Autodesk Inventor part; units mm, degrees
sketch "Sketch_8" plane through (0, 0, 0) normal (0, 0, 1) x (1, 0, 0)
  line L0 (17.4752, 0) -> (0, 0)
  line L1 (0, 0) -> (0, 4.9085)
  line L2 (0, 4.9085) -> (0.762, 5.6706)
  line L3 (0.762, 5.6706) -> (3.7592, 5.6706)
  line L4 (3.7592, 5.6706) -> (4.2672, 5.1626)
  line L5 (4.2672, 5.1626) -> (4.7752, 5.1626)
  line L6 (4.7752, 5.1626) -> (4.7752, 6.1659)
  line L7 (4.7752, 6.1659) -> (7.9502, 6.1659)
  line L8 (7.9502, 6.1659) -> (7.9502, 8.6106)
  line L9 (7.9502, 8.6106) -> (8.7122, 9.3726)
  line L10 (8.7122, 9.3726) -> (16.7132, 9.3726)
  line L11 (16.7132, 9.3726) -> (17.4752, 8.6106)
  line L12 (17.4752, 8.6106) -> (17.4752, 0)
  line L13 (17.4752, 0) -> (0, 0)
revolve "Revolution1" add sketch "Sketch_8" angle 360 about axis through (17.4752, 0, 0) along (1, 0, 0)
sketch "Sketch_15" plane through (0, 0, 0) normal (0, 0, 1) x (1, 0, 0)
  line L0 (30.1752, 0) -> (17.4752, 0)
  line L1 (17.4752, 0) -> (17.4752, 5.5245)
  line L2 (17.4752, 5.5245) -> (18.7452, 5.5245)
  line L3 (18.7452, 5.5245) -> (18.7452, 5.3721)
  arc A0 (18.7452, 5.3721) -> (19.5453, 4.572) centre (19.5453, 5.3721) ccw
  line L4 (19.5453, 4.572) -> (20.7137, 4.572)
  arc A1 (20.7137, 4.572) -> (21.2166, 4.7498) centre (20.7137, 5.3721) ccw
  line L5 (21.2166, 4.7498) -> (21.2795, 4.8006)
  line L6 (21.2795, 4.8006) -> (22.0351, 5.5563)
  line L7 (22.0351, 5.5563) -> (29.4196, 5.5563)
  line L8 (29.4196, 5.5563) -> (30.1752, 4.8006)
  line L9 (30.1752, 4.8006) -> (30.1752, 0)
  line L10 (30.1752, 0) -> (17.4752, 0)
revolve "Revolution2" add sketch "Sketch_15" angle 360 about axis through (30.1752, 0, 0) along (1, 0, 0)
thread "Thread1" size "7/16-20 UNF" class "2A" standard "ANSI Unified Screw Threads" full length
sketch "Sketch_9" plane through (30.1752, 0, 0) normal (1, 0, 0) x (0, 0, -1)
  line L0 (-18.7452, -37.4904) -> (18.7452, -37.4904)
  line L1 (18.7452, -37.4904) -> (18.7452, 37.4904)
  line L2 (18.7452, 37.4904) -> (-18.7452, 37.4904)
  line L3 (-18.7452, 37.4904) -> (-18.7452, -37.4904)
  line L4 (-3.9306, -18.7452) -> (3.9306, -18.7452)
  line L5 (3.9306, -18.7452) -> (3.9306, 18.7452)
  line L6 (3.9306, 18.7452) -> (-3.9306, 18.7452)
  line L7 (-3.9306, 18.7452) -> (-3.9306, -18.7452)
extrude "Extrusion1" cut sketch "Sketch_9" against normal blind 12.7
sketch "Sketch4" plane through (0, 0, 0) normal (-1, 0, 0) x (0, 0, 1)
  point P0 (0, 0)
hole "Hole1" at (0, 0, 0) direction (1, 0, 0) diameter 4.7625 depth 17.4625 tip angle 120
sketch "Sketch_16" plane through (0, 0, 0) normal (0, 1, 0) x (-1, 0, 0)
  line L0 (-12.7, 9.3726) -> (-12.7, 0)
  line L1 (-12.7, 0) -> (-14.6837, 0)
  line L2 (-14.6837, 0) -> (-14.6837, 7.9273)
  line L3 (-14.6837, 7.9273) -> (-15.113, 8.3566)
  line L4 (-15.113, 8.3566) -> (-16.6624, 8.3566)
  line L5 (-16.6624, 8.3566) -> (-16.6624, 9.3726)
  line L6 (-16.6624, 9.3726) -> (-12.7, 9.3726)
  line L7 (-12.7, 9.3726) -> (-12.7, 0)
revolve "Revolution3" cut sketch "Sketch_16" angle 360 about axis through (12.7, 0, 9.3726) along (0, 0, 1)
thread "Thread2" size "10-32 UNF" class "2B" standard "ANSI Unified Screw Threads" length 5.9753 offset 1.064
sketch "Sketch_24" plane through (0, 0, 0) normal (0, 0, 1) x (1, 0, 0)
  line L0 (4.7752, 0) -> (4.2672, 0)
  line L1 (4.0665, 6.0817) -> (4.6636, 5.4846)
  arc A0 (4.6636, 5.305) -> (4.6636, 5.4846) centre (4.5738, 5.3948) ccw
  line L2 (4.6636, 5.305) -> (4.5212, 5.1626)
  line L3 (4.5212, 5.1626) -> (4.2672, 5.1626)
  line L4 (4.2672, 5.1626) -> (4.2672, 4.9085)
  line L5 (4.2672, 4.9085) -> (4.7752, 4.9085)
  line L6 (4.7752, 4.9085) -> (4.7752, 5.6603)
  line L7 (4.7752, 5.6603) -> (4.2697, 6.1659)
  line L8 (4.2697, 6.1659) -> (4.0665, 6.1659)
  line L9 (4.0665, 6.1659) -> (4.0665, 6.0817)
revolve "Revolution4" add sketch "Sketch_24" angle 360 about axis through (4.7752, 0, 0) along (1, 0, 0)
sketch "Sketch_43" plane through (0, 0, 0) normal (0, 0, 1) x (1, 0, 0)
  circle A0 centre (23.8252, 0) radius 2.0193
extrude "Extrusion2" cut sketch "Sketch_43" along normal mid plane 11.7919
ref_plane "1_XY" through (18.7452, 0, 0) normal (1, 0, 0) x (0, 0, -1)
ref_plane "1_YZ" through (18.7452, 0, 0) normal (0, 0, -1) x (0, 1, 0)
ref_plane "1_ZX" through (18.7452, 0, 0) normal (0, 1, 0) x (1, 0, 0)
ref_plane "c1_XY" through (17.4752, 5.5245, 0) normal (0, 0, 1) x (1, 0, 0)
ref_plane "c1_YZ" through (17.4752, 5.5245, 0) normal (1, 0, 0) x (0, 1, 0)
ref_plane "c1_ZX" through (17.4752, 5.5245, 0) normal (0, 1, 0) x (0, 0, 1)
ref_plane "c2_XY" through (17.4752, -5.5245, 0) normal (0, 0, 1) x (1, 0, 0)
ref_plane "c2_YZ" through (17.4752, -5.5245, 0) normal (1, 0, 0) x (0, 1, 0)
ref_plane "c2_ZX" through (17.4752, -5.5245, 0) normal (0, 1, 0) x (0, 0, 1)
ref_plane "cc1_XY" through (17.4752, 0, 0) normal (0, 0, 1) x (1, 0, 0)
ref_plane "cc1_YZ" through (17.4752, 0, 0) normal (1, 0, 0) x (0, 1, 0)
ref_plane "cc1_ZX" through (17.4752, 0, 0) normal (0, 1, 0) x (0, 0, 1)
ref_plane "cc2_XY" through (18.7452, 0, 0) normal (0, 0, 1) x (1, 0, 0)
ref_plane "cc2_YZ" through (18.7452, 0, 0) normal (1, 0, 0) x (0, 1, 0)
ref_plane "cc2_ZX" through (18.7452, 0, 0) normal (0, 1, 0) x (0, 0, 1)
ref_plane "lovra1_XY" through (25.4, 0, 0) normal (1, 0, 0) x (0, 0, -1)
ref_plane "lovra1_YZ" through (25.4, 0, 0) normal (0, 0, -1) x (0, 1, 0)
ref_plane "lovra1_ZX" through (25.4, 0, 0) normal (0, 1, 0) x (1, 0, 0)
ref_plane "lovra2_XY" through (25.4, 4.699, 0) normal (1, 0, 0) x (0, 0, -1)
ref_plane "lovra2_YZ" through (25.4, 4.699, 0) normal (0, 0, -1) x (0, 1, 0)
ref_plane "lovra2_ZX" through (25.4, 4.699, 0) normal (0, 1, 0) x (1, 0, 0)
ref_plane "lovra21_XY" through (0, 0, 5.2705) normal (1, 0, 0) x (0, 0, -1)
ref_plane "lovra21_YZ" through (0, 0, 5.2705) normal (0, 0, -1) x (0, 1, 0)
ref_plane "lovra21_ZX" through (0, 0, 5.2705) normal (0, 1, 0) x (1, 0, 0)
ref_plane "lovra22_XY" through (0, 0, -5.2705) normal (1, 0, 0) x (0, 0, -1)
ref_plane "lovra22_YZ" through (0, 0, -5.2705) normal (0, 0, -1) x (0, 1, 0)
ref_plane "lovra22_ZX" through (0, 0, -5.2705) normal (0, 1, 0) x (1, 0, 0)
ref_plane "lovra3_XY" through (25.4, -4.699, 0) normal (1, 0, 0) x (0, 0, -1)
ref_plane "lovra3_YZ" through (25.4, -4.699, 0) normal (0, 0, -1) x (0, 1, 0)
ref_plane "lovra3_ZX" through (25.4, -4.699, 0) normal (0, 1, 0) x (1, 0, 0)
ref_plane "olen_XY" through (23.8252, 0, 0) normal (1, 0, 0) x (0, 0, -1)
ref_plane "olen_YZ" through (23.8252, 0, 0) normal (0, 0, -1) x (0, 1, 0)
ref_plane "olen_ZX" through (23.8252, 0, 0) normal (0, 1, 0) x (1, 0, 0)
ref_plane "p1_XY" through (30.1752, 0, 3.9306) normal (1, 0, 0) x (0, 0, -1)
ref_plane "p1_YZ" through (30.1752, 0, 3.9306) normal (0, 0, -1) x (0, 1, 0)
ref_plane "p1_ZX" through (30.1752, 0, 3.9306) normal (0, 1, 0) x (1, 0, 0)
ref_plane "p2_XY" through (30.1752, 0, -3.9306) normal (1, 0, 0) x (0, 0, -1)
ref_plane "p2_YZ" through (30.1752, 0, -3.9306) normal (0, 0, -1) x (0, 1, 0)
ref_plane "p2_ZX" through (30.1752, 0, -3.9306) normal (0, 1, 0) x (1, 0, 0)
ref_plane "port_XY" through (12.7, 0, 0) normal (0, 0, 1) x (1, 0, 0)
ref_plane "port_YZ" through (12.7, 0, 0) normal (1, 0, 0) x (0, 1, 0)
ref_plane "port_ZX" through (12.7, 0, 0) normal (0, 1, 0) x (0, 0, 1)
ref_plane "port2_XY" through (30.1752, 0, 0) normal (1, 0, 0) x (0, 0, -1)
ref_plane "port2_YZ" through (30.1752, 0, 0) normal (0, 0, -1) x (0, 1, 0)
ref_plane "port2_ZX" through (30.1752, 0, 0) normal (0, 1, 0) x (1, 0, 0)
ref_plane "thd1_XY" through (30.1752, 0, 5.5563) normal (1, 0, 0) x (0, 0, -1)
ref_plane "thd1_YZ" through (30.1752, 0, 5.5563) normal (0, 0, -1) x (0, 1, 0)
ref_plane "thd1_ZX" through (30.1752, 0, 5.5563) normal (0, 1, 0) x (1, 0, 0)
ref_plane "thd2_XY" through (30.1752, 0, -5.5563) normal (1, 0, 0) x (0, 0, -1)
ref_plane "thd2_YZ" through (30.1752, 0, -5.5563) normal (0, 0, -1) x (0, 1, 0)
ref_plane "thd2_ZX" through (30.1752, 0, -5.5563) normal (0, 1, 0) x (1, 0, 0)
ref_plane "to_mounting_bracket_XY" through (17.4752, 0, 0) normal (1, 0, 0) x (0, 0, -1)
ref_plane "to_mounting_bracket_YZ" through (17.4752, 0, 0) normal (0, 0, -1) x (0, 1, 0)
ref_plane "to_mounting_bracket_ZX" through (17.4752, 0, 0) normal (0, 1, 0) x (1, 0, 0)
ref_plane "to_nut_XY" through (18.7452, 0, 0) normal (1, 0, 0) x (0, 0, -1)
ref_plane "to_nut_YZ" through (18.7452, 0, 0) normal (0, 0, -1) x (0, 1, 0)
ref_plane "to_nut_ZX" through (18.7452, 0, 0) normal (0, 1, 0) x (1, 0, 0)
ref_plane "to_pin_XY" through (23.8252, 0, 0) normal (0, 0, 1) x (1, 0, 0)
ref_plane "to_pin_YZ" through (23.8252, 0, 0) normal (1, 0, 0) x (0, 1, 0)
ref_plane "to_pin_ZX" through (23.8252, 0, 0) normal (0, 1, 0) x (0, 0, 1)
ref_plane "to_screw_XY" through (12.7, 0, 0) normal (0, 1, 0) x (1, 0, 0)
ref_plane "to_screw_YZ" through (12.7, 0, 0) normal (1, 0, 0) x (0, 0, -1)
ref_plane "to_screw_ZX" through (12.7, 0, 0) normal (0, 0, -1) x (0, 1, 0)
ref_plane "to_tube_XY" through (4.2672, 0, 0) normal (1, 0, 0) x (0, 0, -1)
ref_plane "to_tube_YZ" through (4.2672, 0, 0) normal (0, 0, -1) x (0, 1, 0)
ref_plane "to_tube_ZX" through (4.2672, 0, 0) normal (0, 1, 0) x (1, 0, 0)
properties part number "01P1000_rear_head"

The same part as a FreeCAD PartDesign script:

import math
import FreeCAD as App
import Part
import Sketcher

V = App.Vector
Q = App.Units.Quantity

doc = App.newDocument("Part")
body = doc.addObject("PartDesign::Body", "Body")

# Sketch on XY plane
sketch1 = body.newObject("Sketcher::SketchObject", "Sketch")
sketch1.AttachmentSupport = (doc.getObject("XY_Plane"), [""])
sketch1.MapMode = "FlatFace"
sketch1.addGeometry(Part.LineSegment(V(0, 0, 0), V(17.4752, 0, 0)), False)
sketch1.addGeometry(Part.LineSegment(V(17.4752, 0, 0), V(17.4752, 8.6106, 0)), False)
sketch1.addGeometry(Part.LineSegment(V(17.4752, 8.6106, 0), V(16.7132, 9.3726, 0)), False)
sketch1.addGeometry(Part.LineSegment(V(16.7132, 9.3726, 0), V(8.7122, 9.3726, 0)), False)
sketch1.addGeometry(Part.LineSegment(V(8.7122, 9.3726, 0), V(7.9502, 8.6106, 0)), False)
sketch1.addGeometry(Part.LineSegment(V(7.9502, 8.6106, 0), V(7.9502, 6.1659, 0)), False)
sketch1.addGeometry(Part.LineSegment(V(7.9502, 6.1659, 0), V(4.7752, 6.1659, 0)), False)
sketch1.addGeometry(Part.LineSegment(V(4.7752, 6.1659, 0), V(4.7752, 5.1626, 0)), False)
sketch1.addGeometry(Part.LineSegment(V(4.7752, 5.1626, 0), V(4.2672, 5.1626, 0)), False)
sketch1.addGeometry(Part.LineSegment(V(4.2672, 5.1626, 0), V(3.7592, 5.6706, 0)), False)
sketch1.addGeometry(Part.LineSegment(V(3.7592, 5.6706, 0), V(0.762, 5.6706, 0)), False)
sketch1.addGeometry(Part.LineSegment(V(0.762, 5.6706, 0), V(0, 4.9085, 0)), False)
sketch1.addGeometry(Part.LineSegment(V(0, 4.9085, 0), V(0, 0, 0)), False)
sketch1.addConstraint(Sketcher.Constraint("Coincident", 0, 2, 1, 1))
sketch1.addConstraint(Sketcher.Constraint("Coincident", 1, 2, 2, 1))
sketch1.addConstraint(Sketcher.Constraint("Coincident", 2, 2, 3, 1))
sketch1.addConstraint(Sketcher.Constraint("Coincident", 3, 2, 4, 1))
sketch1.addConstraint(Sketcher.Constraint("Coincident", 4, 2, 5, 1))
sketch1.addConstraint(Sketcher.Constraint("Coincident", 5, 2, 6, 1))
sketch1.addConstraint(Sketcher.Constraint("Coincident", 6, 2, 7, 1))
sketch1.addConstraint(Sketcher.Constraint("Coincident", 7, 2, 8, 1))
sketch1.addConstraint(Sketcher.Constraint("Coincident", 8, 2, 9, 1))
sketch1.addConstraint(Sketcher.Constraint("Coincident", 9, 2, 10, 1))
sketch1.addConstraint(Sketcher.Constraint("Coincident", 10, 2, 11, 1))
sketch1.addConstraint(Sketcher.Constraint("Coincident", 11, 2, 12, 1))
sketch1.addConstraint(Sketcher.Constraint("Coincident", 12, 2, 0, 1))
sketch1.addConstraint(Sketcher.Constraint("Horizontal", 0))
sketch1.addConstraint(Sketcher.Constraint("Vertical", 1))
sketch1.addConstraint(Sketcher.Constraint("Horizontal", 3))
sketch1.addConstraint(Sketcher.Constraint("Vertical", 5))
sketch1.addConstraint(Sketcher.Constraint("Horizontal", 6))
sketch1.addConstraint(Sketcher.Constraint("Vertical", 7))
sketch1.addConstraint(Sketcher.Constraint("Horizontal", 8))
sketch1.addConstraint(Sketcher.Constraint("Horizontal", 10))
sketch1.addConstraint(Sketcher.Constraint("Vertical", 12))
sketch1.addConstraint(Sketcher.Constraint("Coincident", 12, 2, -1, 1))
sketch1.addConstraint(Sketcher.Constraint("Perpendicular", 2, 4))
sketch1.addConstraint(Sketcher.Constraint("Perpendicular", 4, 9))
sketch1.addConstraint(Sketcher.Constraint("Perpendicular", 9, 11))
sketch1.addConstraint(Sketcher.Constraint("Horizontal", 1, 2, 4, 2))
sketch1.addConstraint(Sketcher.Constraint("Equal", 2, 4))
sketch1.addConstraint(Sketcher.Constraint("Equal", 4, 11))
sketch1.addConstraint(Sketcher.Constraint("DistanceX", 8, 2, 8, 1, Q("0.02 in")))
sketch1.addConstraint(Sketcher.Constraint("DistanceX", 6, 2, 1, 2, Q("0.5 in")))
sketch1.addConstraint(Sketcher.Constraint("DistanceX", 0, 1, 0, 2, Q("0.688 in")))
sketch1.addConstraint(Sketcher.Constraint("DistanceX", 3, 2, 3, 1, Q("0.315 in")))
sketch1.addConstraint(Sketcher.Constraint("DistanceX", 6, 2, 6, 1, Q("0.125 in")))
sketch1.addConstraint(Sketcher.Constraint("DistanceX", 10, 2, 10, 1, Q("0.118 in")))
sketch1.addConstraint(Sketcher.Constraint("DistanceY", 1, 1, 1, 2, Q("0.339 in")))
sketch1.addConstraint(Sketcher.Constraint("DistanceY", 7, 2, 7, 1, Q("0.0395 in")))
sketch1.addConstraint(Sketcher.Constraint("DistanceY", 5, 2, 5, 1, 2.4447))
revolution = body.newObject("PartDesign::Revolution", "Revolution")
revolution.Profile = sketch1
revolution.ReferenceAxis = (sketch1, ["H_Axis"])
revolution.Angle = 360

# Sketch on XY plane
sketch2 = body.newObject("Sketcher::SketchObject", "Sketch001")
sketch2.AttachmentSupport = (doc.getObject("XY_Plane"), [""])
sketch2.MapMode = "FlatFace"
sketch2.addGeometry(Part.LineSegment(V(17.4752, 0, 0), V(30.1752, 0, 0)), False)
sketch2.addGeometry(Part.LineSegment(V(30.1752, 0, 0), V(30.1752, 4.8006, 0)), False)
sketch2.addGeometry(Part.LineSegment(V(30.1752, 4.8006, 0), V(29.4196, 5.5563, 0)), False)
sketch2.addGeometry(Part.LineSegment(V(29.4196, 5.5563, 0), V(22.0351, 5.5563, 0)), False)
sketch2.addGeometry(Part.LineSegment(V(22.0351, 5.5563, 0), V(21.2795, 4.8006, 0)), False)
sketch2.addGeometry(Part.LineSegment(V(21.2795, 4.8006, 0), V(21.2166, 4.7498, 0)), False)
sketch2.addGeometry(Part.ArcOfCircle(Part.Circle(V(20.7137, 5.3721, 0), V(0, 0, 1), 0.8001), math.radians(-90), math.radians(-51.057244)), False)
sketch2.addGeometry(Part.LineSegment(V(20.7137, 4.572, 0), V(19.5453, 4.572, 0)), False)
sketch2.addGeometry(Part.ArcOfCircle(Part.Circle(V(19.5453, 5.3721, 0), V(0, 0, 1), 0.8001), math.radians(180), math.radians(270)), False)
sketch2.addGeometry(Part.LineSegment(V(18.7452, 5.3721, 0), V(18.7452, 5.5245, 0)), False)
sketch2.addGeometry(Part.LineSegment(V(18.7452, 5.5245, 0), V(17.4752, 5.5245, 0)), False)
sketch2.addGeometry(Part.LineSegment(V(17.4752, 5.5245, 0), V(17.4752, 0, 0)), False)
sketch2.addConstraint(Sketcher.Constraint("Coincident", 0, 2, 1, 1))
sketch2.addConstraint(Sketcher.Constraint("Coincident", 1, 2, 2, 1))
sketch2.addConstraint(Sketcher.Constraint("Coincident", 2, 2, 3, 1))
sketch2.addConstraint(Sketcher.Constraint("Coincident", 3, 2, 4, 1))
sketch2.addConstraint(Sketcher.Constraint("Coincident", 4, 2, 5, 1))
sketch2.addConstraint(Sketcher.Constraint("Tangent", 5, 2, 6, 2))
sketch2.addConstraint(Sketcher.Constraint("Tangent", 6, 1, 7, 1))
sketch2.addConstraint(Sketcher.Constraint("Tangent", 7, 2, 8, 2))
sketch2.addConstraint(Sketcher.Constraint("Tangent", 8, 1, 9, 1))
sketch2.addConstraint(Sketcher.Constraint("Coincident", 9, 2, 10, 1))
sketch2.addConstraint(Sketcher.Constraint("Coincident", 10, 2, 11, 1))
sketch2.addConstraint(Sketcher.Constraint("Coincident", 11, 2, 0, 1))
sketch2.addConstraint(Sketcher.Constraint("Horizontal", 0))
sketch2.addConstraint(Sketcher.Constraint("Vertical", 1))
sketch2.addConstraint(Sketcher.Constraint("Horizontal", 3))
sketch2.addConstraint(Sketcher.Constraint("Horizontal", 7))
sketch2.addConstraint(Sketcher.Constraint("Vertical", 9))
sketch2.addConstraint(Sketcher.Constraint("Horizontal", 10))
sketch2.addConstraint(Sketcher.Constraint("Vertical", 11))
sketch2.addConstraint(Sketcher.Constraint("Equal", 6, 8))
sketch2.addConstraint(Sketcher.Constraint("PointOnObject", 0, 2, -1))
sketch2.addConstraint(Sketcher.Constraint("Perpendicular", 2, 4))
sketch2.addConstraint(Sketcher.Constraint("Horizontal", 1, 2, 4, 2))
sketch2.addConstraint(Sketcher.Constraint("Equal", 2, 4))
sketch2.addConstraint(Sketcher.Constraint("DistanceX", 0, 1, 0, 2, Q("0.5 in")))
sketch2.addConstraint(Sketcher.Constraint("DistanceX", 10, 2, 10, 1, Q("0.05 in")))
sketch2.addConstraint(Sketcher.Constraint("Radius", 6, Q("0.0315 in")))
sketch2.addConstraint(Sketcher.Constraint("DistanceX", 7, 2, 7, 1, Q("0.046 in")))
sketch2.addConstraint(Sketcher.Constraint("DistanceY", 1, 1, 1, 2, Q("0.189 in")))
sketch2.addConstraint(Sketcher.Constraint("DistanceY", 9, 1, 9, 2, Q("0.006 in")))
sketch2.addConstraint(Sketcher.Constraint("DistanceY", -1, 1, 6, 1, Q("0.18 in")))
sketch2.addConstraint(Sketcher.Constraint("DistanceX", -1, 1, 0, 2, Q("1.188 in")))
sketch2.addConstraint(Sketcher.Constraint("DistanceY", -1, 1, 2, 2, Q("0.218752 in")))
sketch2.addConstraint(Sketcher.Constraint("DistanceY", -1, 1, 5, 2, Q("0.187 in")))
revolution2 = body.newObject("PartDesign::Revolution", "Revolution001")
revolution2.Profile = sketch2
revolution2.ReferenceAxis = (sketch2, ["H_Axis"])
revolution2.Angle = 360

# Sketch on YZ plane
sketch3 = body.newObject("Sketcher::SketchObject", "Sketch002")
sketch3.AttachmentSupport = (doc.getObject("YZ_Plane"), [""])
sketch3.MapMode = "FlatFace"
sketch3.AttachmentOffset = App.Placement(V(0, 0, 1.188 * 25.4), App.Rotation())
sketch3.addGeometry(Part.LineSegment(V(37.4904, 18.7452, 0), V(-37.4904, 18.7452, 0)), False)
sketch3.addGeometry(Part.LineSegment(V(-37.4904, 18.7452, 0), V(-37.4904, -18.7452, 0)), False)
sketch3.addGeometry(Part.LineSegment(V(-37.4904, -18.7452, 0), V(37.4904, -18.7452, 0)), False)
sketch3.addGeometry(Part.LineSegment(V(37.4904, -18.7452, 0), V(37.4904, 18.7452, 0)), False)
sketch3.addGeometry(Part.LineSegment(V(-18.7452, -3.9306, 0), V(-18.7452, 3.9306, 0)), False)
sketch3.addGeometry(Part.LineSegment(V(-18.7452, 3.9306, 0), V(18.7452, 3.9306, 0)), False)
sketch3.addGeometry(Part.LineSegment(V(18.7452, 3.9306, 0), V(18.7452, -3.9306, 0)), False)
sketch3.addGeometry(Part.LineSegment(V(18.7452, -3.9306, 0), V(-18.7452, -3.9306, 0)), False)
sketch3.addConstraint(Sketcher.Constraint("Coincident", 0, 2, 1, 1))
sketch3.addConstraint(Sketcher.Constraint("Coincident", 1, 2, 2, 1))
sketch3.addConstraint(Sketcher.Constraint("Coincident", 2, 2, 3, 1))
sketch3.addConstraint(Sketcher.Constraint("Coincident", 3, 2, 0, 1))
sketch3.addConstraint(Sketcher.Constraint("Coincident", 4, 2, 5, 1))
sketch3.addConstraint(Sketcher.Constraint("Coincident", 5, 2, 6, 1))
sketch3.addConstraint(Sketcher.Constraint("Coincident", 6, 2, 7, 1))
sketch3.addConstraint(Sketcher.Constraint("Coincident", 7, 2, 4, 1))
sketch3.addConstraint(Sketcher.Constraint("Horizontal", 0))
sketch3.addConstraint(Sketcher.Constraint("Vertical", 1))
sketch3.addConstraint(Sketcher.Constraint("Horizontal", 2))
sketch3.addConstraint(Sketcher.Constraint("Vertical", 3))
sketch3.addConstraint(Sketcher.Constraint("Vertical", 4))
sketch3.addConstraint(Sketcher.Constraint("Horizontal", 5))
sketch3.addConstraint(Sketcher.Constraint("Vertical", 6))
sketch3.addConstraint(Sketcher.Constraint("Horizontal", 7))
sketch3.addConstraint(Sketcher.Constraint("Symmetric", 0, 2, 2, 2, -1, 1))
sketch3.addConstraint(Sketcher.Constraint("Symmetric", 4, 2, 6, 2, -1, 1))
sketch3.addConstraint(Sketcher.Constraint("Equal", 7, 1))
sketch3.addConstraint(Sketcher.Constraint("DistanceX", 0, 2, 0, 1, Q("2.952 in")))
sketch3.addConstraint(Sketcher.Constraint("DistanceX", 5, 1, 5, 2, Q("1.476 in")))
sketch3.addConstraint(Sketcher.Constraint("DistanceY", 4, 1, 4, 2, Q("0.3095 in")))
pocket1 = body.newObject("PartDesign::Pocket", "Pocket")
pocket1.Profile = sketch3
pocket1.Length = Q("0.5 in")

# Sketch on YZ plane
sketch4 = body.newObject("Sketcher::SketchObject", "Sketch003")
sketch4.AttachmentSupport = (doc.getObject("YZ_Plane"), [""])
sketch4.MapMode = "FlatFace"
sketch4.addGeometry(Part.Circle(V(0, 0, 0), V(0, 0, 1), 2.38125), False)
sketch4.addConstraint(Sketcher.Constraint("Coincident", 0, 3, -1, 1))
sketch4.addConstraint(Sketcher.Constraint("Diameter", 0, Q("0.1875 in")))
doc.recompute()
hole = body.newObject("PartDesign::Hole", "Hole")
hole.Profile = sketch4
hole.ThreadType = "None"
hole.Diameter = Q("0.1875 in")
hole.DepthType = "Dimension"
hole.Depth = Q("0.6875 in")
hole.DrillPoint = "Angled"
hole.DrillPointAngle = 120
hole.Reversed = True

# Sketch on XZ plane
sketch5 = body.newObject("Sketcher::SketchObject", "Sketch004")
sketch5.AttachmentSupport = (doc.getObject("XZ_Plane"), [""])
sketch5.MapMode = "FlatFace"
sketch5.addGeometry(Part.LineSegment(V(12.7, 0, 0), V(12.7, 9.3726, 0)), False)
sketch5.addGeometry(Part.LineSegment(V(12.7, 9.3726, 0), V(16.6624, 9.3726, 0)), False)
sketch5.addGeometry(Part.LineSegment(V(16.6624, 9.3726, 0), V(16.6624, 8.3566, 0)), False)
sketch5.addGeometry(Part.LineSegment(V(16.6624, 8.3566, 0), V(15.113, 8.3566, 0)), False)
sketch5.addGeometry(Part.LineSegment(V(15.113, 8.3566, 0), V(14.6837, 7.9273, 0)), False)
sketch5.addGeometry(Part.LineSegment(V(14.6837, 7.9273, 0), V(14.6837, 0, 0)), False)
sketch5.addGeometry(Part.LineSegment(V(14.6837, 0, 0), V(12.7, 0, 0)), False)
sketch5.addGeometry(Part.LineSegment(V(12.7, 0, 0), V(12.7, 9.3726, 0)), True)  # axis
sketch5.addConstraint(Sketcher.Constraint("Coincident", 0, 2, 1, 1))
sketch5.addConstraint(Sketcher.Constraint("Coincident", 1, 2, 2, 1))
sketch5.addConstraint(Sketcher.Constraint("Coincident", 2, 2, 3, 1))
sketch5.addConstraint(Sketcher.Constraint("Coincident", 3, 2, 4, 1))
sketch5.addConstraint(Sketcher.Constraint("Coincident", 4, 2, 5, 1))
sketch5.addConstraint(Sketcher.Constraint("Coincident", 5, 2, 6, 1))
sketch5.addConstraint(Sketcher.Constraint("Coincident", 6, 2, 0, 1))
sketch5.addConstraint(Sketcher.Constraint("Vertical", 0))
sketch5.addConstraint(Sketcher.Constraint("Horizontal", 1))
sketch5.addConstraint(Sketcher.Constraint("Vertical", 2))
sketch5.addConstraint(Sketcher.Constraint("Horizontal", 3))
sketch5.addConstraint(Sketcher.Constraint("Vertical", 5))
sketch5.addConstraint(Sketcher.Constraint("Horizontal", 6))
sketch5.addConstraint(Sketcher.Constraint("Vertical", 7))
sketch5.addConstraint(Sketcher.Constraint("Coincident", 7, 1, 6, 2))
sketch5.addConstraint(Sketcher.Constraint("PointOnObject", 5, 2, -1))
sketch5.addConstraint(Sketcher.Constraint("Horizontal", 1, 2, 7, 2))
sketch5.addConstraint(Sketcher.Constraint("Angle", 4, Q("-135 deg")))
sketch5.addConstraint(Sketcher.Constraint("DistanceY", 2, 2, 2, 1, Q("0.04 in")))
sketch5.addConstraint(Sketcher.Constraint("DistanceX", -1, 1, 0, 2, Q("0.5 in")))
sketch5.addConstraint(Sketcher.Constraint("DistanceX", 1, 1, 1, 2, Q("0.156 in")))
sketch5.addConstraint(Sketcher.Constraint("DistanceX", 3, 2, 3, 1, Q("0.061 in")))
sketch5.addConstraint(Sketcher.Constraint("DistanceY", 0, 1, 0, 2, Q("0.369 in")))
sketch5.addConstraint(Sketcher.Constraint("DistanceX", 6, 2, 6, 1, Q("0.0781 in")))
groove = body.newObject("PartDesign::Groove", "Groove")
groove.Profile = sketch5
groove.ReferenceAxis = (sketch5, ["Axis0"])
groove.Angle = 360

# Sketch on XY plane
sketch6 = body.newObject("Sketcher::SketchObject", "Sketch005")
sketch6.AttachmentSupport = (doc.getObject("XY_Plane"), [""])
sketch6.MapMode = "FlatFace"
sketch6.addGeometry(Part.LineSegment(V(4.0665, 6.1659, 0), V(4.0665, 6.0817, 0)), False)
sketch6.addGeometry(Part.LineSegment(V(4.0665, 6.0817, 0), V(4.6636, 5.4846, 0)), False)
sketch6.addGeometry(Part.ArcOfCircle(Part.Circle(V(4.5738, 5.3948, 0), V(0, 0, 1), 0.126996), math.radians(-45), math.radians(45)), False)
sketch6.addGeometry(Part.LineSegment(V(4.6636, 5.305, 0), V(4.5212, 5.1626, 0)), False)
sketch6.addGeometry(Part.LineSegment(V(4.5212, 5.1626, 0), V(4.2672, 5.1626, 0)), False)
sketch6.addGeometry(Part.LineSegment(V(4.2672, 5.1626, 0), V(4.2672, 4.9085, 0)), False)
sketch6.addGeometry(Part.LineSegment(V(4.2672, 4.9085, 0), V(4.7752, 4.9085, 0)), False)
sketch6.addGeometry(Part.LineSegment(V(4.7752, 4.9085, 0), V(4.7752, 5.6603, 0)), False)
sketch6.addGeometry(Part.LineSegment(V(4.7752, 5.6603, 0), V(4.2697, 6.1659, 0)), False)
sketch6.addGeometry(Part.LineSegment(V(4.2697, 6.1659, 0), V(4.0665, 6.1659, 0)), False)
sketch6.addConstraint(Sketcher.Constraint("Coincident", 0, 2, 1, 1))
sketch6.addConstraint(Sketcher.Constraint("Tangent", 1, 2, 2, 2))
sketch6.addConstraint(Sketcher.Constraint("Tangent", 2, 1, 3, 1))
sketch6.addConstraint(Sketcher.Constraint("Coincident", 3, 2, 4, 1))
sketch6.addConstraint(Sketcher.Constraint("Coincident", 4, 2, 5, 1))
sketch6.addConstraint(Sketcher.Constraint("Coincident", 5, 2, 6, 1))
sketch6.addConstraint(Sketcher.Constraint("Coincident", 6, 2, 7, 1))
sketch6.addConstraint(Sketcher.Constraint("Coincident", 7, 2, 8, 1))
sketch6.addConstraint(Sketcher.Constraint("Coincident", 8, 2, 9, 1))
sketch6.addConstraint(Sketcher.Constraint("Coincident", 9, 2, 0, 1))
sketch6.addConstraint(Sketcher.Constraint("Vertical", 0))
sketch6.addConstraint(Sketcher.Constraint("Horizontal", 4))
sketch6.addConstraint(Sketcher.Constraint("Vertical", 5))
sketch6.addConstraint(Sketcher.Constraint("Horizontal", 6))
sketch6.addConstraint(Sketcher.Constraint("Vertical", 7))
sketch6.addConstraint(Sketcher.Constraint("Horizontal", 9))
sketch6.addConstraint(Sketcher.Constraint("Perpendicular", 1, 3))
sketch6.addConstraint(Sketcher.Constraint("Perpendicular", 3, 8))
sketch6.addConstraint(Sketcher.Constraint("Vertical", 1, 2, 2, 1))
sketch6.addConstraint(Sketcher.Constraint("Equal", 4, 5))
sketch6.addConstraint(Sketcher.Constraint("Radius", 2, Q("0.005 in")))
sketch6.addConstraint(Sketcher.Constraint("DistanceX", 4, 2, 4, 1, Q("0.01 in")))
sketch6.addConstraint(Sketcher.Constraint("DistanceX", 6, 1, 6, 2, Q("0.02 in")))
sketch6.addConstraint(Sketcher.Constraint("DistanceX", 9, 2, 9, 1, Q("0.008 in")))
sketch6.addConstraint(Sketcher.Constraint("DistanceY", 7, 1, 7, 2, Q("0.0296 in")))
sketch6.addConstraint(Sketcher.Constraint("DistanceX", -1, 1, 3, 2, Q("0.178 in")))
sketch6.addConstraint(Sketcher.Constraint("DistanceY", 2, 1, 7, 2, Q("0.014 in")))
sketch6.addConstraint(Sketcher.Constraint("DistanceY", -1, 1, 2, 3, Q("0.2124 in")))
sketch6.addConstraint(Sketcher.Constraint("DistanceX", -1, 1, 0, 2, Q("0.1601 in")))
revolution3 = body.newObject("PartDesign::Revolution", "Revolution002")
revolution3.Profile = sketch6
revolution3.ReferenceAxis = (sketch6, ["H_Axis"])
revolution3.Angle = 360

# Sketch on XY plane
sketch7 = body.newObject("Sketcher::SketchObject", "Sketch006")
sketch7.AttachmentSupport = (doc.getObject("XY_Plane"), [""])
sketch7.MapMode = "FlatFace"
sketch7.addGeometry(Part.Circle(V(23.8252, 0, 0), V(0, 0, 1), 2.0193), False)
sketch7.addConstraint(Sketcher.Constraint("PointOnObject", 0, 3, -1))
sketch7.addConstraint(Sketcher.Constraint("Diameter", 0, Q("0.159 in")))
sketch7.addConstraint(Sketcher.Constraint("DistanceX", -1, 1, 0, 3, Q("0.938 in")))
pocket2 = body.newObject("PartDesign::Pocket", "Pocket001")
pocket2.Profile = sketch7
pocket2.Length = 11.7919
pocket2.Midplane = True

doc.recompute()
